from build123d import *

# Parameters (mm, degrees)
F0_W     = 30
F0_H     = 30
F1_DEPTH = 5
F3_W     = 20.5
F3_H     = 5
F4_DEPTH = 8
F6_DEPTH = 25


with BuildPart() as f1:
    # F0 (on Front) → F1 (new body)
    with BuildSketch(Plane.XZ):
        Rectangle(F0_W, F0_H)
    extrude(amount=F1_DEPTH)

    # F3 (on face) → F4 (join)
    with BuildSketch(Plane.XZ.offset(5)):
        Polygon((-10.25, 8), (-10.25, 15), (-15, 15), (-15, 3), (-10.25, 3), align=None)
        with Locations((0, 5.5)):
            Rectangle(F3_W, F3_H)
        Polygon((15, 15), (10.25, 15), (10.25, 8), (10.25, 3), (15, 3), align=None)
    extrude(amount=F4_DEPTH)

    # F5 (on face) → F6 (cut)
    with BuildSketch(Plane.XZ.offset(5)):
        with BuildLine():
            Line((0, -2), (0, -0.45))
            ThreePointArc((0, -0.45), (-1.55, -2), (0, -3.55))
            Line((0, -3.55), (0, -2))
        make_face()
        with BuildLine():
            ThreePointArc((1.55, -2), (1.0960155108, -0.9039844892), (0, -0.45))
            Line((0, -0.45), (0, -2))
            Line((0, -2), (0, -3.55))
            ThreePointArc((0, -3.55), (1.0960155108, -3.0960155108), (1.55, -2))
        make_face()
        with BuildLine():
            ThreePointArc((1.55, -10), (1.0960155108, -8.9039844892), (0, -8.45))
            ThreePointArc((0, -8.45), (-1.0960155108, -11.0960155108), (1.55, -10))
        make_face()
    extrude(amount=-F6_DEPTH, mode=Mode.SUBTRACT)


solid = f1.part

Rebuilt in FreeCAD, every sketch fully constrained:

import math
import FreeCAD as App
import Part
import Sketcher

V = App.Vector
Q = App.Units.Quantity


def add_polygon(sketch, points):
    """Adds a closed chain of lines whose ends are joined by coincident constraints."""
    first, n = sketch.GeometryCount, len(points)
    for a, b in zip(points, points[1:] + points[:1]):
        sketch.addGeometry(Part.LineSegment(App.Vector(*a, 0), App.Vector(*b, 0)), False)
    for i in range(n):
        sketch.addConstraint(Sketcher.Constraint("Coincident", first + i, 2, first + (i + 1) % n, 1))

doc = App.newDocument("Part")
body = doc.addObject("PartDesign::Body", "Body")

# Sketch on XZ plane
sketch1 = body.newObject("Sketcher::SketchObject", "Sketch")
sketch1.AttachmentSupport = (doc.getObject("XZ_Plane"), [""])
sketch1.MapMode = "FlatFace"
add_polygon(sketch1, [(-15, 15), (-15, -15), (15, -15), (15, 15)])  # lines 0-3
sketch1.addConstraint(Sketcher.Constraint("Vertical", 0))
sketch1.addConstraint(Sketcher.Constraint("Horizontal", 1))
sketch1.addConstraint(Sketcher.Constraint("Vertical", 2))
sketch1.addConstraint(Sketcher.Constraint("Horizontal", 3))
sketch1.addConstraint(Sketcher.Constraint("Symmetric", 0, 2, 2, 2, -1, 1))
sketch1.addConstraint(Sketcher.Constraint("Equal", 3, 0))
sketch1.addConstraint(Sketcher.Constraint("DistanceX", 1, 1, 1, 2, Q("30 mm")))
pad1 = body.newObject("PartDesign::Pad", "Pad")
pad1.Profile = sketch1
pad1.Length = 5

# Sketch on XZ plane
sketch2 = body.newObject("Sketcher::SketchObject", "Sketch001")
sketch2.AttachmentSupport = (doc.getObject("XZ_Plane"), [""])
sketch2.MapMode = "FlatFace"
sketch2.AttachmentOffset = App.Placement(V(0, 0, 5), App.Rotation())
add_polygon(sketch2, [(-10.2, 15), (-15, 15), (-15, 3), (15, 3), (15, 15), (10.2, 15), (10.2, 8), (-10.2, 8)])  # lines 0-7
sketch2.addConstraint(Sketcher.Constraint("Horizontal", 0))
sketch2.addConstraint(Sketcher.Constraint("Vertical", 1))
sketch2.addConstraint(Sketcher.Constraint("Horizontal", 2))
sketch2.addConstraint(Sketcher.Constraint("Vertical", 3))
sketch2.addConstraint(Sketcher.Constraint("Horizontal", 4))
sketch2.addConstraint(Sketcher.Constraint("Vertical", 5))
sketch2.addConstraint(Sketcher.Constraint("Horizontal", 6))
sketch2.addConstraint(Sketcher.Constraint("Vertical", 7))
sketch2.addConstraint(Sketcher.Constraint("Symmetric", 0, 2, 3, 2, -2))
sketch2.addConstraint(Sketcher.Constraint("Equal", 0, 4))
sketch2.addConstraint(Sketcher.Constraint("DistanceX", 2, 1, 2, 2, Q("30 mm")))
sketch2.addConstraint(Sketcher.Constraint("DistanceY", 1, 2, 1, 1, Q("12 mm")))
sketch2.addConstraint(Sketcher.Constraint("DistanceY", 5, 2, 5, 1, Q("7 mm")))
sketch2.addConstraint(Sketcher.Constraint("DistanceX", 6, 2, 6, 1, Q("20.5 mm")))
sketch2.addConstraint(Sketcher.Constraint("DistanceY", -1, 1, 0, 2, Q("15 mm")))
pad2 = body.newObject("PartDesign::Pad", "Pad001")
pad2.Profile = sketch2
pad2.Length = 8

# Sketch on XZ plane
sketch3 = body.newObject("Sketcher::SketchObject", "Sketch002")
sketch3.AttachmentSupport = (doc.getObject("XZ_Plane"), [""])
sketch3.MapMode = "FlatFace"
sketch3.AttachmentOffset = App.Placement(V(0, 0, 5), App.Rotation())
sketch3.addGeometry(Part.ArcOfCircle(Part.Circle(V(0, -2, 0), V(0, 0, 1), 1.6), math.radians(90), math.radians(270)), False)
sketch3.addGeometry(Part.ArcOfCircle(Part.Circle(V(0, -2, 0), V(0, 0, 1), 1.6), math.radians(-90), math.radians(0)), False)
sketch3.addGeometry(Part.ArcOfCircle(Part.Circle(V(0, -2, 0), V(0, 0, 1), 1.6), math.radians(0), math.radians(90)), False)
sketch3.addGeometry(Part.ArcOfCircle(Part.Circle(V(0, -10, 0), V(0, 0, 1), 1.6), math.radians(0), math.radians(90)), False)
sketch3.addGeometry(Part.ArcOfCircle(Part.Circle(V(0, -10, 0), V(0, 0, 1), 1.6), math.radians(90), math.radians(360)), False)
sketch3.addConstraint(Sketcher.Constraint("Tangent", 0, 2, 1, 1))
sketch3.addConstraint(Sketcher.Constraint("Tangent", 1, 2, 2, 1))
sketch3.addConstraint(Sketcher.Constraint("Tangent", 2, 2, 0, 1))
sketch3.addConstraint(Sketcher.Constraint("Tangent", 3, 1, 4, 2))
sketch3.addConstraint(Sketcher.Constraint("Coincident", 4, 1, 3, 2))
sketch3.addConstraint(Sketcher.Constraint("Equal", 2, 3))
sketch3.addConstraint(Sketcher.Constraint("PointOnObject", 0, 3, -2))
sketch3.addConstraint(Sketcher.Constraint("PointOnObject", 3, 3, -2))
sketch3.addConstraint(Sketcher.Constraint("PointOnObject", 0, 2, -2))
sketch3.addConstraint(Sketcher.Constraint("PointOnObject", 2, 2, -2))
sketch3.addConstraint(Sketcher.Constraint("PointOnObject", 4, 1, -2))
sketch3.addConstraint(Sketcher.Constraint("Horizontal", 2, 3, 1, 2))
sketch3.addConstraint(Sketcher.Constraint("Horizontal", 4, 3, 3, 1))
sketch3.addConstraint(Sketcher.Constraint("Radius", 0, Q("1.55 mm")))
sketch3.addConstraint(Sketcher.Constraint("DistanceY", 0, 3, -1, 1, Q("2 mm")))
sketch3.addConstraint(Sketcher.Constraint("DistanceY", 3, 3, -1, 1, Q("10 mm")))
pocket1 = body.newObject("PartDesign::Pocket", "Pocket")
pocket1.Profile = sketch3
pocket1.Length = 25

doc.recompute()
